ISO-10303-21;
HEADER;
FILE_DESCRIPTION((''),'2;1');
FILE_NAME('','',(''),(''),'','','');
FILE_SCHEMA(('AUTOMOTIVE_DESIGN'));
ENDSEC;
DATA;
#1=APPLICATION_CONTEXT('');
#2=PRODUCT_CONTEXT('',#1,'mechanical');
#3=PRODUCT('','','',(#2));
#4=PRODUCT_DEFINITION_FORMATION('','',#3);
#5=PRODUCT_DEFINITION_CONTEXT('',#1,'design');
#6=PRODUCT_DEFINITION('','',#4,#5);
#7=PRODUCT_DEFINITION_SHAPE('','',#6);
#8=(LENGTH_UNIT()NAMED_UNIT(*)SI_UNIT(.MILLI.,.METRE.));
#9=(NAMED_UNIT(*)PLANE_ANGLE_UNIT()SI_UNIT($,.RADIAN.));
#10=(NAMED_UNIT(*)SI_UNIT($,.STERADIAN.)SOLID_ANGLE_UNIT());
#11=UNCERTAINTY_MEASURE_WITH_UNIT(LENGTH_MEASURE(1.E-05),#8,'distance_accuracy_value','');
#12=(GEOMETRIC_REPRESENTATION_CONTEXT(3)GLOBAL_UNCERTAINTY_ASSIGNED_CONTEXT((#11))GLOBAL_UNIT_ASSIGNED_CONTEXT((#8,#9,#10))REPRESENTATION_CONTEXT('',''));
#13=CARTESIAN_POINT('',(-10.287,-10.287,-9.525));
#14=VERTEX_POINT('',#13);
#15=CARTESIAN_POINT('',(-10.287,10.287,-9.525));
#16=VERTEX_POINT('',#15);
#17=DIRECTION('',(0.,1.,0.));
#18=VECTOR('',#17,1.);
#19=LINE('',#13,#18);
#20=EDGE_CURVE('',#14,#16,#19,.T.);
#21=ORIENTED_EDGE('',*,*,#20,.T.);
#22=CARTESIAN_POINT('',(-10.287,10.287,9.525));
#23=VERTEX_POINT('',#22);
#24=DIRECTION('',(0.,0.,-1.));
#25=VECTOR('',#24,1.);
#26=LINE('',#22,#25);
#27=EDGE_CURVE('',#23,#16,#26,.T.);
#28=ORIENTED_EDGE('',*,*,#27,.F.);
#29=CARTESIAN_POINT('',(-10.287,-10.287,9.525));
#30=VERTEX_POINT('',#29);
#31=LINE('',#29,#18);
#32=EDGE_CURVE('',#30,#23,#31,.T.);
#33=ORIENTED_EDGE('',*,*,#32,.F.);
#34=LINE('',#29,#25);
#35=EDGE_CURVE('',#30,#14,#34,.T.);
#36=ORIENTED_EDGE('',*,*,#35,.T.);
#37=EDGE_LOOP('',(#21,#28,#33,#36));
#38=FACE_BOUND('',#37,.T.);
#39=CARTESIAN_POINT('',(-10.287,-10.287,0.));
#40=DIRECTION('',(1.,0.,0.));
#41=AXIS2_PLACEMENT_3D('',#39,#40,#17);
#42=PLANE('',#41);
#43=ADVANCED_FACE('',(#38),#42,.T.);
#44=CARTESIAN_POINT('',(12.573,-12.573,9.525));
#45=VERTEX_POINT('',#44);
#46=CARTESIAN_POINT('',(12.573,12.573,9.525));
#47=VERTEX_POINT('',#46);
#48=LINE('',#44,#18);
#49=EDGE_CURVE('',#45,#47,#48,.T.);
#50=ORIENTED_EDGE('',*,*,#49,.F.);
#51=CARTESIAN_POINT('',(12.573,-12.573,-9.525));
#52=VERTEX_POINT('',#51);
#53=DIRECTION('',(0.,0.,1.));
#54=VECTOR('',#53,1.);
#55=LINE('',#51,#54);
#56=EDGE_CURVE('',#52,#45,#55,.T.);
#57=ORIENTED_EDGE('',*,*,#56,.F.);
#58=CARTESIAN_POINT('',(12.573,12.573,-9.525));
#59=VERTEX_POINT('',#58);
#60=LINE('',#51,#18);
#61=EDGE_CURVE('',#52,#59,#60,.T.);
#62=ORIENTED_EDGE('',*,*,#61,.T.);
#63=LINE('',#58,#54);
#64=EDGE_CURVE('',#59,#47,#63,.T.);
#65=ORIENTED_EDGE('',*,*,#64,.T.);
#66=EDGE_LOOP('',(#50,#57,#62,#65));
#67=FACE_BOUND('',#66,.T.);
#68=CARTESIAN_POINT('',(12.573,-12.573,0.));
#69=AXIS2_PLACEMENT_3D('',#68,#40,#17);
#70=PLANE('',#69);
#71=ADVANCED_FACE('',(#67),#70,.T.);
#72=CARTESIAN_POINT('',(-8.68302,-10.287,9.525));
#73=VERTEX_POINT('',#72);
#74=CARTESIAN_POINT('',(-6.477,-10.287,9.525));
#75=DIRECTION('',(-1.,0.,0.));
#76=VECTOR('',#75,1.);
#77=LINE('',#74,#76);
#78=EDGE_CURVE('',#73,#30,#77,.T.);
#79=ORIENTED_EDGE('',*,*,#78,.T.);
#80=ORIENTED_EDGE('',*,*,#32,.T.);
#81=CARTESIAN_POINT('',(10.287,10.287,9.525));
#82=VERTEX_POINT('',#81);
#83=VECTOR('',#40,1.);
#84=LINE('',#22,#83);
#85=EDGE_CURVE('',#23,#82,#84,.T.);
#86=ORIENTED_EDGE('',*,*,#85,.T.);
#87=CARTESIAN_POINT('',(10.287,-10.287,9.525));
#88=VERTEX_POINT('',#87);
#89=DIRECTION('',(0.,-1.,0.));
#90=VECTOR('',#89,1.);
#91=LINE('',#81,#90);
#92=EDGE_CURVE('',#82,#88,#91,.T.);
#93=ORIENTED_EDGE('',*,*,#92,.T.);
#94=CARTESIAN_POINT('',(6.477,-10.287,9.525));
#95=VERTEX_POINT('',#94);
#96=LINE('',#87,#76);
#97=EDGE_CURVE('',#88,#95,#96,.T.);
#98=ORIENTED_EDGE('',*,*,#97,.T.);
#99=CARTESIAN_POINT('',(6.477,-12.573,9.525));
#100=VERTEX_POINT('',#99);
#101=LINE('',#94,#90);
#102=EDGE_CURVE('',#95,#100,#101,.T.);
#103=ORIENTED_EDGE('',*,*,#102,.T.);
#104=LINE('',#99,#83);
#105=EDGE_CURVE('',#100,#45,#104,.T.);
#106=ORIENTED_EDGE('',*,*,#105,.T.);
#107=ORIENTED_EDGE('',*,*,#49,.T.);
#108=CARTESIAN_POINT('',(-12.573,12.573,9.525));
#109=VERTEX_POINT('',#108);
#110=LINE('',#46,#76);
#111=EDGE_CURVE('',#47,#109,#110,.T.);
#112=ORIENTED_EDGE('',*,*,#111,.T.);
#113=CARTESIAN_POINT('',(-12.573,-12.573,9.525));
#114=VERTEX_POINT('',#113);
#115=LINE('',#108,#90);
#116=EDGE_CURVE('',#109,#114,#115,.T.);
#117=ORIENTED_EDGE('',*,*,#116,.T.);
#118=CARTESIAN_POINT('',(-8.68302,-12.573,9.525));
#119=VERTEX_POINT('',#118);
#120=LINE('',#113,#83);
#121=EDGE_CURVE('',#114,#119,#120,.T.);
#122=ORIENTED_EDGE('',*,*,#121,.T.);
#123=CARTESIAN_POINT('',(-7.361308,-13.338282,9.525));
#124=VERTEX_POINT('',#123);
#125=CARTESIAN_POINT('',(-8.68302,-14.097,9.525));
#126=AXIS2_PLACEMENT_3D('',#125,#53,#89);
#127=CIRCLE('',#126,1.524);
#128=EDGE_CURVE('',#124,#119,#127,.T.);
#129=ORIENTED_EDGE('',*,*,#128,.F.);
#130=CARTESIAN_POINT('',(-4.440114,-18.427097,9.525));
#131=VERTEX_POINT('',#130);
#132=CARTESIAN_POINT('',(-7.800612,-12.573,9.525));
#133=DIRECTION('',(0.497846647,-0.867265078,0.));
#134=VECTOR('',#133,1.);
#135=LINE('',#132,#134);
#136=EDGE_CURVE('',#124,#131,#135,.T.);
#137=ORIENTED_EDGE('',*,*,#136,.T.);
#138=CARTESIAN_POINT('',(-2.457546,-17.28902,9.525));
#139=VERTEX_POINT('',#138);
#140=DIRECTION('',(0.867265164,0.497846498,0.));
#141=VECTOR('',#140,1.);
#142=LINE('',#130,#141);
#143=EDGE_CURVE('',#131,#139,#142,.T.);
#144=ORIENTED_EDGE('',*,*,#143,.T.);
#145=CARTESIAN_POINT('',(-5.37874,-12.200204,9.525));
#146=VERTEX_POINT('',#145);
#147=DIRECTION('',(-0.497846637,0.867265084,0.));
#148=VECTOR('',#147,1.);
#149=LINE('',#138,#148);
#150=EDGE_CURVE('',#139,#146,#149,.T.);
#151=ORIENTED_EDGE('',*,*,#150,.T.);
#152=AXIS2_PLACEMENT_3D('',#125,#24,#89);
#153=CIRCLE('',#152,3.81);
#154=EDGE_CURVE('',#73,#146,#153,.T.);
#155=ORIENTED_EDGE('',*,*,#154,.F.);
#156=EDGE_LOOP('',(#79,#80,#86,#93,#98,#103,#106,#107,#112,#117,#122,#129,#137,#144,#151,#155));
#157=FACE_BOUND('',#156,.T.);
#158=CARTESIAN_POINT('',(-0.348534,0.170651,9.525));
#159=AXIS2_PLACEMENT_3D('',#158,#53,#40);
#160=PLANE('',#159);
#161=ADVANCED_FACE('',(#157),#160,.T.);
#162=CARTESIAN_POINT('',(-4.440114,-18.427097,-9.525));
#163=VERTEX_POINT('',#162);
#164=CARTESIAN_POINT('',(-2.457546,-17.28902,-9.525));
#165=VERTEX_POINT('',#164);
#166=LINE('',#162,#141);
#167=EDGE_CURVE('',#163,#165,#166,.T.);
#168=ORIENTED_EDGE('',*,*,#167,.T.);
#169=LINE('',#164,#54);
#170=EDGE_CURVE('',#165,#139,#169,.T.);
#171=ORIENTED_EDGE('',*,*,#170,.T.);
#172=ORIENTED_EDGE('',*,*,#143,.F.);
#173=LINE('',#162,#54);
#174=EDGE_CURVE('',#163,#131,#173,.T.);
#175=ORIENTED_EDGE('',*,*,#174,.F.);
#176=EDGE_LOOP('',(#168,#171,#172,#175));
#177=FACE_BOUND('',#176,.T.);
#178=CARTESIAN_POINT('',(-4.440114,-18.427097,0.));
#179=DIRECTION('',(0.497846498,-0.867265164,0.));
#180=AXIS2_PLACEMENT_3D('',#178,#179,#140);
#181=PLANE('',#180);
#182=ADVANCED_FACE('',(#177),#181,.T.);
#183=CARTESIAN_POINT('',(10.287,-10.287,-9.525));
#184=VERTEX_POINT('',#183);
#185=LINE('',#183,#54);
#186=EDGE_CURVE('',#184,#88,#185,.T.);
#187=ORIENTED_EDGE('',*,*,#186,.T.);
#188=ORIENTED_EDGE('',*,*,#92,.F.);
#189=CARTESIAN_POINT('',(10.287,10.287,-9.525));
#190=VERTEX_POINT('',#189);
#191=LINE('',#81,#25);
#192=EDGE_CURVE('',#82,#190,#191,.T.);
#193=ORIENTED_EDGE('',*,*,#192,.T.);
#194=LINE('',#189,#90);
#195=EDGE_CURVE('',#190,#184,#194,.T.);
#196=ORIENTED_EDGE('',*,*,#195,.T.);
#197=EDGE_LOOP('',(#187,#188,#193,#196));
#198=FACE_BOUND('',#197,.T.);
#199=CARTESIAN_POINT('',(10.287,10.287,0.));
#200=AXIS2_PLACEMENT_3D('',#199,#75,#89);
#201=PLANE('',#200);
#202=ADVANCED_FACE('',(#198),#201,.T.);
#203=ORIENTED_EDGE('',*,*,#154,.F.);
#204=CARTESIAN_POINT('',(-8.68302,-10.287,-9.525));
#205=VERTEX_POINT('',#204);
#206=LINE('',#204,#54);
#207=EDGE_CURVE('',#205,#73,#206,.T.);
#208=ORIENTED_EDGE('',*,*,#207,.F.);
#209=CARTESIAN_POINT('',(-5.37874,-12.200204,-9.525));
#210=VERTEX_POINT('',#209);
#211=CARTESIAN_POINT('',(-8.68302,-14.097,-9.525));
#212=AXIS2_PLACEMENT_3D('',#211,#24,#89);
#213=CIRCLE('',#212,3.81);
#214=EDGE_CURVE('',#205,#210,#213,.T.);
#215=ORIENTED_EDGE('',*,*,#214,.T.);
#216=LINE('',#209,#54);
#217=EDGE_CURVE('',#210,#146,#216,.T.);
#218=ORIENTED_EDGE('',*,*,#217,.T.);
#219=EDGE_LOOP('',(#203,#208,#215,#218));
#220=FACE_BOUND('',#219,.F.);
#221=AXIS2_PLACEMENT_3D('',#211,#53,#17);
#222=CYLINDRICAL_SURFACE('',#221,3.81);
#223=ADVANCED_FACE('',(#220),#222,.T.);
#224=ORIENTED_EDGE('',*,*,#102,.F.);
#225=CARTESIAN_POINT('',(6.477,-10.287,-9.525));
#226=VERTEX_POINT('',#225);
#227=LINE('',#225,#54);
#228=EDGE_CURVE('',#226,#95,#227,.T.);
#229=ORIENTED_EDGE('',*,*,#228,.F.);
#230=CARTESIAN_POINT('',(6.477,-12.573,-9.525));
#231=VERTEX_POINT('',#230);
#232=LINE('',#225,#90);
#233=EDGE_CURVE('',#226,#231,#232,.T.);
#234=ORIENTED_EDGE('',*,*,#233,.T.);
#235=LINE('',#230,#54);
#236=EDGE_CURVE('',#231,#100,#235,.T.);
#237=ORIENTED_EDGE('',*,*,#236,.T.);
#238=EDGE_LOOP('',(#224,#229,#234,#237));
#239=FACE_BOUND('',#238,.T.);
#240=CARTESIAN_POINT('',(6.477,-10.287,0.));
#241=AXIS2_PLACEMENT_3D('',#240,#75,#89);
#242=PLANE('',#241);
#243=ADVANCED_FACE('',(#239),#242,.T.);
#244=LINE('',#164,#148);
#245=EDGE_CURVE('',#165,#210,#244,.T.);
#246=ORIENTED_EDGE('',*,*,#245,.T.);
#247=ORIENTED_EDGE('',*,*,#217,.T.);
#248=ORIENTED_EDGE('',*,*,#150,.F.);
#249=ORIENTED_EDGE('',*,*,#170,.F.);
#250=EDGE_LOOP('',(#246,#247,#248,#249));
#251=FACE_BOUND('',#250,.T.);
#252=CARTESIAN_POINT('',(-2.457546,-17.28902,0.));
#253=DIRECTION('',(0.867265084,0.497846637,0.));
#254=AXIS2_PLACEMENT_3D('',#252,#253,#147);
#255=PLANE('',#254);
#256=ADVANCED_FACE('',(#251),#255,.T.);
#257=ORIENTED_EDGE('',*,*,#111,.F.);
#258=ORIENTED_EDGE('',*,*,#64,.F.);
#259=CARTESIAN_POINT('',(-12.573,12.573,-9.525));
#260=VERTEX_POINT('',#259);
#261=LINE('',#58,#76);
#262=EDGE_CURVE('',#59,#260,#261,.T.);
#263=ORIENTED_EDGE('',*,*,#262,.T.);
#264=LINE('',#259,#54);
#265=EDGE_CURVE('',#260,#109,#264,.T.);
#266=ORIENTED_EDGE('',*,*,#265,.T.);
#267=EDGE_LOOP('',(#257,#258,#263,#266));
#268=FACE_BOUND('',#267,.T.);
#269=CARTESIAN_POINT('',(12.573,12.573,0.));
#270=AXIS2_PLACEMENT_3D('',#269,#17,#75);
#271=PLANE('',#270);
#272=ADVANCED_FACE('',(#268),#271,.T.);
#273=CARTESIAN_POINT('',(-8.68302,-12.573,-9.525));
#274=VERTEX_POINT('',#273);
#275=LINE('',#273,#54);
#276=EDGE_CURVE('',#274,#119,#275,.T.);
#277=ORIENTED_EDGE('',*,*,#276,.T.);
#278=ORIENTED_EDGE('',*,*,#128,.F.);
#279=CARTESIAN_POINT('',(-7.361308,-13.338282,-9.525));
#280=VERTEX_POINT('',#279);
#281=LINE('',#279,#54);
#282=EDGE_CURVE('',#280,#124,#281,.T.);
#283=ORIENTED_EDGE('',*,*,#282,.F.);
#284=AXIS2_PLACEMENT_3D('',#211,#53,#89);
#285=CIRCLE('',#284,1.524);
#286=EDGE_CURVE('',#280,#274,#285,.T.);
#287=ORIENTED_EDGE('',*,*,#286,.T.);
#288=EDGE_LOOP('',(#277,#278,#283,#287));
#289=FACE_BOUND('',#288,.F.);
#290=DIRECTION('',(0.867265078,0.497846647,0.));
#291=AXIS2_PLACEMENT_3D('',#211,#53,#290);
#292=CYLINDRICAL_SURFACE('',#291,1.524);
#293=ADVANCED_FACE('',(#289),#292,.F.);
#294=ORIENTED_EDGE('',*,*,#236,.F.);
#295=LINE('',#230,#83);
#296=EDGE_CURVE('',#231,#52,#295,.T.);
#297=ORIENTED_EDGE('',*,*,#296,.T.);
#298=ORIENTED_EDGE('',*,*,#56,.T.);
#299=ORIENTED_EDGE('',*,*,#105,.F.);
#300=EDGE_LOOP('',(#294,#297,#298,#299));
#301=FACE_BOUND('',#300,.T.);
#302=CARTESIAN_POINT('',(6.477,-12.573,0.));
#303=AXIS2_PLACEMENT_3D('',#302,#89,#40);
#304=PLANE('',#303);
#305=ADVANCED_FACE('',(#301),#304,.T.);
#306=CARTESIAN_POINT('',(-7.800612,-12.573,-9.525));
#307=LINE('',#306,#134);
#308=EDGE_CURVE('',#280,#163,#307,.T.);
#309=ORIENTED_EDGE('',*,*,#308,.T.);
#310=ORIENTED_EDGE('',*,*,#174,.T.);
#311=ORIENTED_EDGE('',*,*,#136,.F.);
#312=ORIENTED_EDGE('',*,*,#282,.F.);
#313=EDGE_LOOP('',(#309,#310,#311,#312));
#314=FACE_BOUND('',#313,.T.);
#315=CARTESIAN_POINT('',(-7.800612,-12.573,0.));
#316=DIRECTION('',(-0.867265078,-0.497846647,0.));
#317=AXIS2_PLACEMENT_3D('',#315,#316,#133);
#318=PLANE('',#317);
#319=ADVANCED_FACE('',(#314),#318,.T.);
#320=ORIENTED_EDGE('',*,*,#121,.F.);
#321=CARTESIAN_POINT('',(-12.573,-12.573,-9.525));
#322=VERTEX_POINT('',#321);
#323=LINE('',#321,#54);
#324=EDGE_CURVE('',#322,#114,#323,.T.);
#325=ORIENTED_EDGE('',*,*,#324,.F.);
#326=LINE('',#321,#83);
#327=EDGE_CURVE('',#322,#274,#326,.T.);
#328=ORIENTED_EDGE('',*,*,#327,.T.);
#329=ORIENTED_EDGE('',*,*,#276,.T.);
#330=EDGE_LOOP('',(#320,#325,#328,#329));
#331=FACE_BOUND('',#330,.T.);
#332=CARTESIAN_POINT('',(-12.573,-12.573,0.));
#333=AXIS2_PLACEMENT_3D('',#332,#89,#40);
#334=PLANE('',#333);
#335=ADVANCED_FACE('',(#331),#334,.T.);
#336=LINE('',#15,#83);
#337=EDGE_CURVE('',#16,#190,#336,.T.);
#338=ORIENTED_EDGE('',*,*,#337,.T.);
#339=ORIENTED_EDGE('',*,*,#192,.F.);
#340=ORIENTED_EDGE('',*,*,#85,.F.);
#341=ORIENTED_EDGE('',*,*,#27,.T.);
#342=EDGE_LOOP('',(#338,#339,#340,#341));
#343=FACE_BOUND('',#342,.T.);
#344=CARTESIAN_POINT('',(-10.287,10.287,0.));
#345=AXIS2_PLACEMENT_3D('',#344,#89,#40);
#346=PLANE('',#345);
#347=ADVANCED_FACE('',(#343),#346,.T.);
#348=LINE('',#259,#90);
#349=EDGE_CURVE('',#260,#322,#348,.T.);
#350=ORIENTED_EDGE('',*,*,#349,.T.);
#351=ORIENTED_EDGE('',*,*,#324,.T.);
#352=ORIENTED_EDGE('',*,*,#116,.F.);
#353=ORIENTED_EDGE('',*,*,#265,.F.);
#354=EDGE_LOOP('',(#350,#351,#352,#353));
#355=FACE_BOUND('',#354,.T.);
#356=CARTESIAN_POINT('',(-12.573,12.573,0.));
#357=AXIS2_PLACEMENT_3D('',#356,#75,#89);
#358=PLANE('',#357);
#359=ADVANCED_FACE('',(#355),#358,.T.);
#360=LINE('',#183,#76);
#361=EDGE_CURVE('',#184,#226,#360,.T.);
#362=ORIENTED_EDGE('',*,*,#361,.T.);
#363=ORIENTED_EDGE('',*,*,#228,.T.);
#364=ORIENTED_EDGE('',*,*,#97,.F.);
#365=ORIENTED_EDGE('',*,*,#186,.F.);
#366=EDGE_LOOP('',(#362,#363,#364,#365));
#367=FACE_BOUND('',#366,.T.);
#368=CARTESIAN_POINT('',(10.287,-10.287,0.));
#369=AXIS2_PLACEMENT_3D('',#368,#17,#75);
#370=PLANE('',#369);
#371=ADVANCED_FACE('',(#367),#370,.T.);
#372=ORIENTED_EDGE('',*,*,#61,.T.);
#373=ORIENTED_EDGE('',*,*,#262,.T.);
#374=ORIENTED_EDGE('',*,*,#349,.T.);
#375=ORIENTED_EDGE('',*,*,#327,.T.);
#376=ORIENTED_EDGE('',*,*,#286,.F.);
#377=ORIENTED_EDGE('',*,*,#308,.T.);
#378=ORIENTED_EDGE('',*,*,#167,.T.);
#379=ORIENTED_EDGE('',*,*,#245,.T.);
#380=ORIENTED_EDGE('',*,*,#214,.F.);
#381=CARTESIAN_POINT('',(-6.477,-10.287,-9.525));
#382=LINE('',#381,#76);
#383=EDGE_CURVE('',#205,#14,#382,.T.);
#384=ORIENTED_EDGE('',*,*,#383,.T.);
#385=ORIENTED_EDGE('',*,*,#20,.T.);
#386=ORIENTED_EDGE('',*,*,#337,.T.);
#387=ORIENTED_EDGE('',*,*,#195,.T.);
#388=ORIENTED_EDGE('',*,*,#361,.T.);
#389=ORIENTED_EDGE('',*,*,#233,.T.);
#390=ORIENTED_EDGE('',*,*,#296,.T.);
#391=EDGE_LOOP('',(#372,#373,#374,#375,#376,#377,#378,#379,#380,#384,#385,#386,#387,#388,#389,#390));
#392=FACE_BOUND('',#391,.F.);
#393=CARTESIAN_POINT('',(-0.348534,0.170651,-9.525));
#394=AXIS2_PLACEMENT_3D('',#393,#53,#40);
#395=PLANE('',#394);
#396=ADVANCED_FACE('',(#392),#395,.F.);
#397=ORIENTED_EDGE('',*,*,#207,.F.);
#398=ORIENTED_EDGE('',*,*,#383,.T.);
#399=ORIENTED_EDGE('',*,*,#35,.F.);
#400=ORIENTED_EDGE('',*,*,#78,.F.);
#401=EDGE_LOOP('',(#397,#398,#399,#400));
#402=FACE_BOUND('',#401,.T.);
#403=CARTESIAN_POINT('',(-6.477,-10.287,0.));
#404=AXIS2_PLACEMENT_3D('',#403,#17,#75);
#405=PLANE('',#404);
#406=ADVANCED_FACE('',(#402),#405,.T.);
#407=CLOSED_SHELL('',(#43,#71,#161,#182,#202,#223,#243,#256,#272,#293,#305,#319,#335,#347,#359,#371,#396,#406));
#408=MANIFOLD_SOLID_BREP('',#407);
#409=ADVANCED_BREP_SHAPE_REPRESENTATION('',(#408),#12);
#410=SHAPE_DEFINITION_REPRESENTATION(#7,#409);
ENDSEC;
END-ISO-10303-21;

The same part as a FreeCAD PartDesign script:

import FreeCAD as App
import Part
import Sketcher
from FreeCAD import Vector
Q = App.Units.Quantity


def edges_at(feature, points):
    """Names of the edges that pass closest to the given points."""
    edges = feature.Shape.Edges
    near = lambda p: min(range(len(edges)), key=lambda i: edges[i].distToShape(Part.Vertex(*p))[0])
    return sorted({f"Edge{near(p) + 1}" for p in points})


def add_polygon(sketch, points):
    """Adds a closed chain of lines whose ends are joined by coincident constraints."""
    first, n = sketch.GeometryCount, len(points)
    for a, b in zip(points, points[1:] + points[:1]):
        sketch.addGeometry(Part.LineSegment(App.Vector(*a, 0), App.Vector(*b, 0)), False)
    for i in range(n):
        sketch.addConstraint(Sketcher.Constraint("Coincident", first + i, 2, first + (i + 1) % n, 1))

doc = App.newDocument("Part")
body = doc.addObject("PartDesign::Body", "Body")

# Sketch on XY plane
sketch1 = body.newObject("Sketcher::SketchObject", "Sketch")
sketch1.AttachmentSupport = (doc.getObject("XY_Plane"), [""])
sketch1.MapMode = "FlatFace"
add_polygon(sketch1, [(10.287, 10.287), (10.287, -10.287), (6.477, -10.287), (6.477, -12.573), (12.573, -12.573), (12.573, 12.573), (-12.573, 12.573), (-12.573, -12.573), (-7.800612, -12.573), (-4.440114, -18.427097), (-2.457546, -17.28902), (-6.477, -10.287), (-10.287, -10.287), (-10.287, 10.287)])  # lines 0-13
sketch1.addConstraint([
    Sketcher.Constraint("Vertical", 0),
    Sketcher.Constraint("Horizontal", 1),
    Sketcher.Constraint("Vertical", 2),
    Sketcher.Constraint("Horizontal", 3),
    Sketcher.Constraint("Vertical", 4),
    Sketcher.Constraint("Horizontal", 5),
    Sketcher.Constraint("Vertical", 6),
    Sketcher.Constraint("Horizontal", 7),
    Sketcher.Constraint("Horizontal", 11),
    Sketcher.Constraint("Vertical", 12),
    Sketcher.Constraint("Horizontal", 13),
    Sketcher.Constraint("Symmetric", 3, 2, 5, 2, -1, 1),
    Sketcher.Constraint("Symmetric", 0, 2, 12, 2, -1, 1),
    Sketcher.Constraint("Symmetric", 1, 2, 10, 2, -2),
    Sketcher.Constraint("Perpendicular", 8, 9),
    Sketcher.Constraint("Perpendicular", 9, 10),
    Sketcher.Constraint("Horizontal", 3, 2, 6, 2),
    Sketcher.Constraint("Equal", 13, 0),
    Sketcher.Constraint("Equal", 5, 4),
    Sketcher.Constraint("DistanceX", 1, 2, 1, 1, Q("0.15 in")),
    Sketcher.Constraint("DistanceX", 3, 1, 3, 2, Q("0.24 in")),
    Sketcher.Constraint("DistanceX", 5, 2, 5, 1, Q("0.99 in")),
    Sketcher.Constraint("Distance", 9, Q("0.09 in")),
    Sketcher.Constraint("DistanceX", 7, 1, 7, 2, 4.772388),
    Sketcher.Constraint("Distance", 10, 8.073679),
])
pad1 = body.newObject("PartDesign::Pad", "Pad")
pad1.Profile = sketch1
pad1.Length = Q("0.75 in")
pad1.Midplane = True
doc.recompute()

fillet = body.newObject("PartDesign::Fillet", "Fillet")
fillet.Base = (pad1, edges_at(pad1, [(-6.477, -10.287, 0)]))
fillet.Radius = Q("0.15 in")
doc.recompute()

fillet2 = body.newObject("PartDesign::Fillet", "Fillet001")
fillet2.Base = (fillet, edges_at(fillet, [(-7.801, -12.573, 0)]))
fillet2.Radius = Q("0.06 in")

doc.recompute()
